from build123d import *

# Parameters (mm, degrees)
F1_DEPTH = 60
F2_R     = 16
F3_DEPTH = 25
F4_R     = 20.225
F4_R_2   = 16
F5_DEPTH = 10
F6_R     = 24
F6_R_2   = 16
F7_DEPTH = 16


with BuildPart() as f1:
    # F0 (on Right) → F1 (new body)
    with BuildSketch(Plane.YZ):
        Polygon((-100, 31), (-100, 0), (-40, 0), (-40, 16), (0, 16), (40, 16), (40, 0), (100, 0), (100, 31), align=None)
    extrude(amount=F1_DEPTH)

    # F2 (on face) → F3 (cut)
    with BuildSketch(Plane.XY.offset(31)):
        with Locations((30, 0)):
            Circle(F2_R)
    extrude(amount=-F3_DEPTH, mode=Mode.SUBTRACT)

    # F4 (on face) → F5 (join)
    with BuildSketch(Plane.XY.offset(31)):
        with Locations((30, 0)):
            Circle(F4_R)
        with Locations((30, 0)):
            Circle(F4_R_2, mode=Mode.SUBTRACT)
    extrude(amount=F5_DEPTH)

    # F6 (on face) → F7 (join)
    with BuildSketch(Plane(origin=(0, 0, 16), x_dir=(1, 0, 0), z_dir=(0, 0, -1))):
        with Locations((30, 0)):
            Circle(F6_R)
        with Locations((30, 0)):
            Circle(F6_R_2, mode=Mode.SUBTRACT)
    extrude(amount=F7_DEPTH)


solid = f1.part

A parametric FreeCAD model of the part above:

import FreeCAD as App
import Part
import Sketcher
from FreeCAD import Vector


def add_polygon(sketch, points):
    """Adds a closed chain of lines whose ends are joined by coincident constraints."""
    first, n = sketch.GeometryCount, len(points)
    for a, b in zip(points, points[1:] + points[:1]):
        sketch.addGeometry(Part.LineSegment(App.Vector(*a, 0), App.Vector(*b, 0)), False)
    for i in range(n):
        sketch.addConstraint(Sketcher.Constraint("Coincident", first + i, 2, first + (i + 1) % n, 1))

doc = App.newDocument("Part")
body = doc.addObject("PartDesign::Body", "Body")

# Sketch on YZ plane
sketch1 = body.newObject("Sketcher::SketchObject", "Sketch")
sketch1.AttachmentSupport = (doc.getObject("YZ_Plane"), [""])
sketch1.MapMode = "FlatFace"
add_polygon(sketch1, [(-100, 31), (-100, 0), (-40, 0), (-40, 16), (40, 16), (40, 0), (100, 0), (100, 31)])  # lines 0-7
sketch1.addConstraint([
    Sketcher.Constraint("Vertical", 0),
    Sketcher.Constraint("Horizontal", 1),
    Sketcher.Constraint("Vertical", 2),
    Sketcher.Constraint("Horizontal", 3),
    Sketcher.Constraint("Vertical", 4),
    Sketcher.Constraint("Horizontal", 5),
    Sketcher.Constraint("Vertical", 6),
    Sketcher.Constraint("Horizontal", 7),
    Sketcher.Constraint("Symmetric", 1, 2, 4, 2, -1, 1),
    Sketcher.Constraint("Symmetric", 0, 2, 5, 2, -2),
    Sketcher.Constraint("DistanceX", 1, 1, 1, 2, 60.0),
    Sketcher.Constraint("DistanceX", 3, 1, 3, 2, 80.0),
    Sketcher.Constraint("DistanceY", 0, 2, 0, 1, 31.0),
    Sketcher.Constraint("DistanceY", 2, 1, 2, 2, 16.0),
])
pad1 = body.newObject("PartDesign::Pad", "Pad")
pad1.Profile = sketch1
pad1.Length = 60

# Sketch on XY plane
sketch2 = body.newObject("Sketcher::SketchObject", "Sketch001")
sketch2.AttachmentSupport = (doc.getObject("XY_Plane"), [""])
sketch2.MapMode = "FlatFace"
sketch2.AttachmentOffset = App.Placement(Vector(0, 0, 31), App.Rotation())
sketch2.addGeometry(Part.Circle(Vector(30, 0, 0), Vector(0, 0, 1), 16), False)
sketch2.addConstraint([
    Sketcher.Constraint("PointOnObject", 0, 3, -1),
    Sketcher.Constraint("Diameter", 0, 32.0),
    Sketcher.Constraint("DistanceX", -1, 1, 0, 3, 30.0),
])
pocket1 = body.newObject("PartDesign::Pocket", "Pocket")
pocket1.Profile = sketch2
pocket1.Length = 25

# Sketch on XY plane
sketch3 = body.newObject("Sketcher::SketchObject", "Sketch002")
sketch3.AttachmentSupport = (doc.getObject("XY_Plane"), [""])
sketch3.MapMode = "FlatFace"
sketch3.AttachmentOffset = App.Placement(Vector(0, 0, 31), App.Rotation())
sketch3.addGeometry([
    Part.Circle(Vector(30, 0, 0), Vector(0, 0, 1), 20),
    Part.Circle(Vector(30, 0, 0), Vector(0, 0, 1), 16),
], False)
sketch3.addConstraint([
    Sketcher.Constraint("Coincident", 1, 3, 0, 3),
    Sketcher.Constraint("PointOnObject", 0, 3, -1),
    Sketcher.Constraint("Diameter", 1, 32.0),
    Sketcher.Constraint("Diameter", 0, 40.45),
    Sketcher.Constraint("DistanceX", -1, 1, 0, 3, 30.0),
])
pad2 = body.newObject("PartDesign::Pad", "Pad001")
pad2.Profile = sketch3
pad2.Length = 10

# Sketch on XY plane
sketch4 = body.newObject("Sketcher::SketchObject", "Sketch003")
sketch4.AttachmentSupport = (doc.getObject("XY_Plane"), [""])
sketch4.MapMode = "FlatFace"
sketch4.AttachmentOffset = App.Placement(Vector(0, 0, 16), App.Rotation())
sketch4.addGeometry([
    Part.Circle(Vector(30, 0, 0), Vector(0, 0, 1), 24),
    Part.Circle(Vector(30, 0, 0), Vector(0, 0, 1), 16),
], False)
sketch4.addConstraint([
    Sketcher.Constraint("Coincident", 1, 3, 0, 3),
    Sketcher.Constraint("PointOnObject", 0, 3, -1),
    Sketcher.Constraint("Diameter", 0, 48.0),
    Sketcher.Constraint("Diameter", 1, 32.0),
    Sketcher.Constraint("DistanceX", -1, 1, 0, 3, 30.0),
])
pad3 = body.newObject("PartDesign::Pad", "Pad002")
pad3.Profile = sketch4
pad3.Length = 16
pad3.Reversed = True

doc.recompute()
